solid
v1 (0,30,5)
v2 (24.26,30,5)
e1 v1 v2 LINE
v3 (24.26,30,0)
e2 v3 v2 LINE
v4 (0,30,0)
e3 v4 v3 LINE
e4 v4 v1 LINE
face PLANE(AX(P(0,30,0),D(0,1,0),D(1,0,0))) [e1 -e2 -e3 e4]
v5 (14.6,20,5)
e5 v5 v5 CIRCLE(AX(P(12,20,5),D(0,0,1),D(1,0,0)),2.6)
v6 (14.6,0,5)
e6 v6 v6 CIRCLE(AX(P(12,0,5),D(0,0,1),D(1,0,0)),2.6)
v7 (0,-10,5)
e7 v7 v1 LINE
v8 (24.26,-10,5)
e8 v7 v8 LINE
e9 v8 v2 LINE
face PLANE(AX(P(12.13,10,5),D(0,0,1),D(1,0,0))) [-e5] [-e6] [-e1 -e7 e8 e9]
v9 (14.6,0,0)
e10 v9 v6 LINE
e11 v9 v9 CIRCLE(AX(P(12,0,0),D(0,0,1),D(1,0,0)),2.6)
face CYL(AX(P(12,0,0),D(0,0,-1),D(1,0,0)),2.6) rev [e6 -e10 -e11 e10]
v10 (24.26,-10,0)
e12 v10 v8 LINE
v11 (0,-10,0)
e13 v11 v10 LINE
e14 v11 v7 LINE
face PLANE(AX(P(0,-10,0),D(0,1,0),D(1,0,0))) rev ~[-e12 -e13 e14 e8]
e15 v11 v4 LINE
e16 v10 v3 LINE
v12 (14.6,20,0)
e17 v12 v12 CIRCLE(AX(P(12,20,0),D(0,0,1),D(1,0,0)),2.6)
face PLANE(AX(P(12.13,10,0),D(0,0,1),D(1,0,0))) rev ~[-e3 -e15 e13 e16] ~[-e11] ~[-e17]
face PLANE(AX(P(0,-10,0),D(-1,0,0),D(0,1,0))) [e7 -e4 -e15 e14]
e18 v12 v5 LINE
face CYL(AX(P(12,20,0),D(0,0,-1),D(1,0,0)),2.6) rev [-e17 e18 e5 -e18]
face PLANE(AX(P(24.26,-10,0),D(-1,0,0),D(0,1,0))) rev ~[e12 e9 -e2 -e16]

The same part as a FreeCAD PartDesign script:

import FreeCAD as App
import Part
import Sketcher

doc = App.newDocument("Part")
body = doc.addObject("PartDesign::Body", "Body")

# Sketch on XY plane
sketch1 = doc.addObject("Sketcher::SketchObject", "Sketch")
body.addObject(sketch1)
sketch1.AttachmentSupport = (doc.XY_Plane, [""])
sketch1.MapMode = "FlatFace"
sketch1.addGeometry([
    Part.LineSegment(App.Vector(0, 30, 0), App.Vector(0, -10, 0)),  # 0
    Part.LineSegment(App.Vector(0, -10, 0), App.Vector(24.3, -10, 0)),  # 1
    Part.LineSegment(App.Vector(24.3, -10, 0), App.Vector(24.3, 30, 0)),  # 2
    Part.LineSegment(App.Vector(24.3, 30, 0), App.Vector(0, 30, 0)),  # 3
    Part.Circle(App.Vector(12, 0, 0), App.Vector(0, 0, 1), 2.6),  # 4
    Part.Circle(App.Vector(12, 20, 0), App.Vector(0, 0, 1), 2.6),  # 5
], False)
sketch1.addConstraint([
    Sketcher.Constraint("Coincident", 0, 2, 1, 1),
    Sketcher.Constraint("Coincident", 1, 2, 2, 1),
    Sketcher.Constraint("Coincident", 2, 2, 3, 1),
    Sketcher.Constraint("Coincident", 3, 2, 0, 1),
    Sketcher.Constraint("Vertical", 0),
    Sketcher.Constraint("Horizontal", 1),
    Sketcher.Constraint("Vertical", 2),
    Sketcher.Constraint("Horizontal", 3),
    Sketcher.Constraint("Equal", 4, 5),
    Sketcher.Constraint("PointOnObject", 4, 3, -1),
    Sketcher.Constraint("PointOnObject", 0, 2, -2),
    Sketcher.Constraint("Vertical", 4, 3, 5, 3),
    Sketcher.Constraint("Diameter", 4, 5.2),
    Sketcher.Constraint("DistanceY", 0, 2, 0, 1, 40.0),
    Sketcher.Constraint("DistanceX", -1, 1, 4, 3, 12.0),
    Sketcher.Constraint("DistanceY", -1, 1, 5, 3, 20.0),
    Sketcher.Constraint("DistanceY", 0, 2, -1, 1, 10.0),
    Sketcher.Constraint("DistanceX", 1, 1, 1, 2, 24.26),
])
pad1 = doc.addObject("PartDesign::Pad", "Pad")
body.addObject(pad1)
pad1.Profile = sketch1
pad1.Length = 5

doc.recompute()
